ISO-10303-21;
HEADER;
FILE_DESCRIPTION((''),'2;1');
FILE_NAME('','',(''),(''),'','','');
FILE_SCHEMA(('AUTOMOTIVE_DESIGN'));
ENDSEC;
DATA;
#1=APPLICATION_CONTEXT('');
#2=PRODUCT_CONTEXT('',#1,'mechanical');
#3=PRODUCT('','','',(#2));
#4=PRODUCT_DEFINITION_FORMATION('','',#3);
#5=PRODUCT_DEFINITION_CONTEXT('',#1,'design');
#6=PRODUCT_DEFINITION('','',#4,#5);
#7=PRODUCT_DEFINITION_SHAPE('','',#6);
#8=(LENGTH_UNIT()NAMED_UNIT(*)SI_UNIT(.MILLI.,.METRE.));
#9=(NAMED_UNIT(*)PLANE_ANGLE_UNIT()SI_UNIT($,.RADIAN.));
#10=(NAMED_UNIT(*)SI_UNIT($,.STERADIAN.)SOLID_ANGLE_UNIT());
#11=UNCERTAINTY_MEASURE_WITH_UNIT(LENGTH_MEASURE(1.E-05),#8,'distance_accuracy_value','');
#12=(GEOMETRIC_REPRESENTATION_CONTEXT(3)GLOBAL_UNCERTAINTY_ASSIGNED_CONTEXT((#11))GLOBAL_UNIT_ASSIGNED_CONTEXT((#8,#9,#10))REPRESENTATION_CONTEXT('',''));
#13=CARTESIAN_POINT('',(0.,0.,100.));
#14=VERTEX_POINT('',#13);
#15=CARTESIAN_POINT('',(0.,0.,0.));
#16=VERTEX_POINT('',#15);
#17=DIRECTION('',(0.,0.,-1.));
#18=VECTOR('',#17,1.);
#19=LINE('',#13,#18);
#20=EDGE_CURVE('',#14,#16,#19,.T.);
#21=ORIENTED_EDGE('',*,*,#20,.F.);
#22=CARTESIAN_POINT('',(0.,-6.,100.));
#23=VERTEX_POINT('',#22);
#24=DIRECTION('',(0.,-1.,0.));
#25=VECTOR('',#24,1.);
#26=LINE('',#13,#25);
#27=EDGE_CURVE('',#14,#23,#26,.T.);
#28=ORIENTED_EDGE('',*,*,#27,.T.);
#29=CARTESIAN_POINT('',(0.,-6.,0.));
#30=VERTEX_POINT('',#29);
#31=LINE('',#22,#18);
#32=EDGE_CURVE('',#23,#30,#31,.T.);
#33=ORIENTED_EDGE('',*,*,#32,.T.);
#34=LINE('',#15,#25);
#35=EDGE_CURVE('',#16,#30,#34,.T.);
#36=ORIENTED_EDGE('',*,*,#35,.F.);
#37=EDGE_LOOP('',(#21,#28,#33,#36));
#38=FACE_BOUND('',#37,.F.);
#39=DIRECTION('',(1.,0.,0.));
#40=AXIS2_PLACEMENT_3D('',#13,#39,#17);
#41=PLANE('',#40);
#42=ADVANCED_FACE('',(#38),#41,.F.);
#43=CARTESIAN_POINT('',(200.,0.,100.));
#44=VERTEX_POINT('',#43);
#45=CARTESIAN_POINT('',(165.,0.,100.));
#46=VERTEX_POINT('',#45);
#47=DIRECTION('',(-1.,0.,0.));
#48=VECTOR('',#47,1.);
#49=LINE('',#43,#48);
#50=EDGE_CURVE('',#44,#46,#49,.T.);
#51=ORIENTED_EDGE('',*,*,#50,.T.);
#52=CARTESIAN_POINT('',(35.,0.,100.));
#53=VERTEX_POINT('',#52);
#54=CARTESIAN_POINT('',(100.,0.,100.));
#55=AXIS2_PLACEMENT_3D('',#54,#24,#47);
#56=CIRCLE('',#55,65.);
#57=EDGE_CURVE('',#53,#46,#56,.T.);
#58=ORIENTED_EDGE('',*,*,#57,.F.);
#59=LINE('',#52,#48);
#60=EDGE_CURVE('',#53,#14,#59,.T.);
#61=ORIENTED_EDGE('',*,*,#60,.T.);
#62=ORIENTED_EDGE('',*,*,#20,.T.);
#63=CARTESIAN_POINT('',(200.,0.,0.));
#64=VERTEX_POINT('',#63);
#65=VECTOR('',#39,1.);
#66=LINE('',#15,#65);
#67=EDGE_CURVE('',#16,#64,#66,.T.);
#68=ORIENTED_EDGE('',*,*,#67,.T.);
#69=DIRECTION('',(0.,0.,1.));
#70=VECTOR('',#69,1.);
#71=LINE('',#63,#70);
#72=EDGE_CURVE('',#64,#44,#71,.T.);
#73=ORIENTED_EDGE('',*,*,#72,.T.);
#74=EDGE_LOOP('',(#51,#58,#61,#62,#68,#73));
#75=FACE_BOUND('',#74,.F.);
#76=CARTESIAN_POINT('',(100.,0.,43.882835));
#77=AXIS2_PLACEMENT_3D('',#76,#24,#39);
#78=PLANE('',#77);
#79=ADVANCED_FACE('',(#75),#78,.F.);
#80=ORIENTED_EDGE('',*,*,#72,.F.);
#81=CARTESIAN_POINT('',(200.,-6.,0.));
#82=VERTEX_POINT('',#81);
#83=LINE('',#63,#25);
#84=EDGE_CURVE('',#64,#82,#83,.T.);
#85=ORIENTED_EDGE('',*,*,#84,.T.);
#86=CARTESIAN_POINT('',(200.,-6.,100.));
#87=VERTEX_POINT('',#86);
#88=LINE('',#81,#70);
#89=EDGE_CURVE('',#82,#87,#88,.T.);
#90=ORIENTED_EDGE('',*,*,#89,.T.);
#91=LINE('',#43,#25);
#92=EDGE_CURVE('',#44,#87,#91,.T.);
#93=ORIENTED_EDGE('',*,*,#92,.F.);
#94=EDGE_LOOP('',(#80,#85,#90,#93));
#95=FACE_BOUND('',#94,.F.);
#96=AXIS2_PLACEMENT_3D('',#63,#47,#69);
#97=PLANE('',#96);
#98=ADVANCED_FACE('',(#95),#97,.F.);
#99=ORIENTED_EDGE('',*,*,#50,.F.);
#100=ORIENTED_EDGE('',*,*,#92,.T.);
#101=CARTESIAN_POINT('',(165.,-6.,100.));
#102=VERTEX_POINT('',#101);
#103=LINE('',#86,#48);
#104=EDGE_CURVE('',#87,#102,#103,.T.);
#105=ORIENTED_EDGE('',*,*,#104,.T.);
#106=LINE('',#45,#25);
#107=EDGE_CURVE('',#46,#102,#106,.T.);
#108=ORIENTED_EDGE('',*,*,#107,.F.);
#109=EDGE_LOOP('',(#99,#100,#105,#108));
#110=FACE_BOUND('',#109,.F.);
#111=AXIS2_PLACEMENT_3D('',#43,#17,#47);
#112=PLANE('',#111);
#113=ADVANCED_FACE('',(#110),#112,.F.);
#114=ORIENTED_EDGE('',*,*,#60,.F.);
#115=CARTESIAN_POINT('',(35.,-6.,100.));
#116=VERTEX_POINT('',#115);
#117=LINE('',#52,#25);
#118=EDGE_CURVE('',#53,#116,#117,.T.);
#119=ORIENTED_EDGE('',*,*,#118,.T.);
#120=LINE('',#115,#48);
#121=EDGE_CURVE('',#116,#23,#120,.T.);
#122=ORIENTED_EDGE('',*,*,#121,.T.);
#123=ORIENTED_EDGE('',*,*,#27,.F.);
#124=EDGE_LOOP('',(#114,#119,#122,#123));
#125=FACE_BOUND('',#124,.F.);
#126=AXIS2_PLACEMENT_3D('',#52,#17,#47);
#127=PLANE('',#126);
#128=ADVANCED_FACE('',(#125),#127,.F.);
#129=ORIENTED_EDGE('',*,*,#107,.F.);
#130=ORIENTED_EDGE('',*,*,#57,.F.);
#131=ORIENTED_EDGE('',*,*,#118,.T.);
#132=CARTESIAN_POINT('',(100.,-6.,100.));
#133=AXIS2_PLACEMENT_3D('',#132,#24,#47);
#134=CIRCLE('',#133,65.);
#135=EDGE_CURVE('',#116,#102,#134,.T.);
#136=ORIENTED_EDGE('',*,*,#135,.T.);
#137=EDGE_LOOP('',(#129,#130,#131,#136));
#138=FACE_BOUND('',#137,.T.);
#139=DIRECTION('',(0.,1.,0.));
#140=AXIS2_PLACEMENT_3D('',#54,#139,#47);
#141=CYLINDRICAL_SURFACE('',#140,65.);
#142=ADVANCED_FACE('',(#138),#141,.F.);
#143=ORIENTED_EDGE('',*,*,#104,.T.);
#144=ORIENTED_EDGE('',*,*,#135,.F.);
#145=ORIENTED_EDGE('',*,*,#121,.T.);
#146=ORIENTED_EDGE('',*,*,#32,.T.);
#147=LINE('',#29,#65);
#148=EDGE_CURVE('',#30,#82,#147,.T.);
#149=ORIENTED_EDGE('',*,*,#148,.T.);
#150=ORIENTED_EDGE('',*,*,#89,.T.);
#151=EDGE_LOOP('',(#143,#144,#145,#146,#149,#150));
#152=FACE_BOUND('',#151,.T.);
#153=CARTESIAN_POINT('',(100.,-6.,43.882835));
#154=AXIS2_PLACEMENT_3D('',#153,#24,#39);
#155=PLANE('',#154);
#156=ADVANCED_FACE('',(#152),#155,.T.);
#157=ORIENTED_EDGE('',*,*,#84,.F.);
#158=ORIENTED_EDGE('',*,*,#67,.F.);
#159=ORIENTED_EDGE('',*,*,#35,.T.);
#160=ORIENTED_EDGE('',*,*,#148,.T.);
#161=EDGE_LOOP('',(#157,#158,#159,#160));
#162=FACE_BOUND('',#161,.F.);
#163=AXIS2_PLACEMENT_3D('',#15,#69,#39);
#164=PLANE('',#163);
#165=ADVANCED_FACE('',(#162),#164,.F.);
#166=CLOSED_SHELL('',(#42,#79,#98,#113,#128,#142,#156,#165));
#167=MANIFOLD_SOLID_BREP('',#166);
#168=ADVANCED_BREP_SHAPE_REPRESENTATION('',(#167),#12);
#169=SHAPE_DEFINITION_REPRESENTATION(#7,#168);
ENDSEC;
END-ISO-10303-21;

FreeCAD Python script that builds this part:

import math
import FreeCAD as App
import Part
import Sketcher

doc = App.newDocument("Part")
params = doc.addObject("Spreadsheet::Sheet", "Params")
for row, (alias, value) in enumerate([
    ("sketch1_radius", "65 mm"),
    ("sketch1_width", "200 mm"),
    ("sketch1_height", "100 mm"),
    ("pad1_length", "6 mm"),
], start=1):
    params.set(f"A{row}", alias)
    params.set(f"B{row}", "=" + value)
    params.setAlias(f"B{row}", alias)

body = doc.addObject("PartDesign::Body", "Body")

# Sketch on XZ plane
sketch1 = doc.addObject("Sketcher::SketchObject", "Sketch")
body.addObject(sketch1)
sketch1.AttachmentSupport = (doc.XZ_Plane, [""])
sketch1.MapMode = "FlatFace"
sketch1.addGeometry([
    Part.LineSegment(App.Vector(0, 0, 0), App.Vector(200, 0, 0)),  # 0
    Part.LineSegment(App.Vector(200, 0, 0), App.Vector(200, 100, 0)),  # 1
    Part.LineSegment(App.Vector(200, 100, 0), App.Vector(165, 100, 0)),  # 2
    Part.ArcOfCircle(Part.Circle(App.Vector(100, 100, 0), App.Vector(0, 0, 1), 65), math.radians(180), math.radians(360)),  # 3
    Part.LineSegment(App.Vector(35, 100, 0), App.Vector(0, 100, 0)),  # 4
    Part.LineSegment(App.Vector(0, 100, 0), App.Vector(0, 0, 0)),  # 5
], False)
sketch1.addConstraint([
    Sketcher.Constraint("Coincident", 0, 2, 1, 1),
    Sketcher.Constraint("Coincident", 1, 2, 2, 1),
    Sketcher.Constraint("Coincident", 2, 2, 3, 2),
    Sketcher.Constraint("Coincident", 3, 1, 4, 1),
    Sketcher.Constraint("Coincident", 4, 2, 5, 1),
    Sketcher.Constraint("Coincident", 5, 2, 0, 1),
    Sketcher.Constraint("Horizontal", 0),
    Sketcher.Constraint("Vertical", 1),
    Sketcher.Constraint("Horizontal", 2),
    Sketcher.Constraint("Horizontal", 4),
    Sketcher.Constraint("Vertical", 5),
    Sketcher.Constraint("Coincident", 5, 2, -1, 1),
    Sketcher.Constraint("Horizontal", 3, 3, 1, 2),
    Sketcher.Constraint("Horizontal", 2, 2, 3, 1),
    Sketcher.Constraint("Equal", 2, 4),
    Sketcher.Constraint("Radius", 3, 65.0),
    Sketcher.Constraint("DistanceX", 0, 1, 0, 2, 200.0),
    Sketcher.Constraint("DistanceY", 1, 1, 1, 2, 100.0),
])
sketch1.setExpression("Constraints[15]", "Params.sketch1_radius")
sketch1.setExpression("Constraints[16]", "Params.sketch1_width")
sketch1.setExpression("Constraints[17]", "Params.sketch1_height")
pad1 = doc.addObject("PartDesign::Pad", "Pad")
body.addObject(pad1)
pad1.Profile = sketch1
pad1.setExpression("Length", "Params.pad1_length")

doc.recompute()
